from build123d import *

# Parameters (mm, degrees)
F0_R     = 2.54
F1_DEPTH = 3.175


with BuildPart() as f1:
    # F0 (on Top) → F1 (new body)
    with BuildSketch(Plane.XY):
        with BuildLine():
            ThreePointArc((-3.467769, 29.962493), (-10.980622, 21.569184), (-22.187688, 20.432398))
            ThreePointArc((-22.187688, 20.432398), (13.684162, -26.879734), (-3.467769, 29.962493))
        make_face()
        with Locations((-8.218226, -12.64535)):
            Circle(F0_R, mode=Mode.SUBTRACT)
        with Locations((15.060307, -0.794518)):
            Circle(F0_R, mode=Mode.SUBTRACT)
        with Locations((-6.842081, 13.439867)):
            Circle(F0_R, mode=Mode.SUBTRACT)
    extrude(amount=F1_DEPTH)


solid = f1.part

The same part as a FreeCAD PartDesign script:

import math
import FreeCAD as App
import Part
import Sketcher
from FreeCAD import Vector
Q = App.Units.Quantity

doc = App.newDocument("Part")
params = doc.addObject("Spreadsheet::Sheet", "Params")
for row, (alias, value) in enumerate([
    ("sketch1_diameter", "0.2 in"),
    ("sketch1_radius", "1.1875 in"),
    ("pad1_length", "0.125 in"),
], start=1):
    params.set(f"A{row}", alias)
    params.set(f"B{row}", "=" + value)
    params.setAlias(f"B{row}", alias)

body = doc.addObject("PartDesign::Body", "Body")

sketch1 = doc.addObject("Sketcher::SketchObject", "Sketch")
body.addObject(sketch1)
sketch1.AttachmentSupport = (doc.XY_Plane, [""])
sketch1.MapMode = "FlatFace"
sketch1.addGeometry(Part.ArcOfCircle(Part.Circle(Vector(-18.1, 35.5, 0), Vector(0, 0, 1), 15.6), math.radians(-105), math.radians(-21)), False)
sketch1.addGeometry(Part.ArcOfCircle(Part.Circle(Vector(0, 0, 0), Vector(0, 0, 1), 30.2), math.radians(137), math.radians(457)), False)
sketch1.addGeometry(Part.Circle(Vector(-8.2, -12.6, 0), Vector(0, 0, 1), 2.5), False)
sketch1.addGeometry(Part.Circle(Vector(15.1, -0.8, 0), Vector(0, 0, 1), 2.5), False)
sketch1.addGeometry(Part.Circle(Vector(-6.8, 13.4, 0), Vector(0, 0, 1), 2.5), False)
sketch1.addConstraint(Sketcher.Constraint("Coincident", 0, 1, 1, 1))
sketch1.addConstraint(Sketcher.Constraint("Coincident", 1, 2, 0, 2))
sketch1.addConstraint(Sketcher.Constraint("Coincident", 1, 3, -1, 1))
sketch1.addConstraint(Sketcher.Constraint("Equal", 2, 3))
sketch1.addConstraint(Sketcher.Constraint("Equal", 3, 4))
sketch1.addConstraint(Sketcher.Constraint("Diameter", 2, Q("0.2 in")))
sketch1.addConstraint(Sketcher.Constraint("Radius", 1, Q("1.1875 in")))
sketch1.addConstraint(Sketcher.Constraint("Radius", 0, Q("15.583267 mm")))
sketch1.addConstraint(Sketcher.Constraint("DistanceX", 0, 3, -1, 1, Q("18.050459 mm")))
sketch1.addConstraint(Sketcher.Constraint("DistanceY", -1, 1, 0, 3, Q("35.45643 mm")))
sketch1.addConstraint(Sketcher.Constraint("DistanceY", 2, 3, -1, 1, Q("12.64535 mm")))
sketch1.addConstraint(Sketcher.Constraint("DistanceX", 4, 3, -1, 1, Q("6.842081 mm")))
sketch1.addConstraint(Sketcher.Constraint("DistanceY", 3, 3, 1, 3, Q("0.794518 mm")))
sketch1.addConstraint(Sketcher.Constraint("DistanceX", 4, 3, 3, 3, Q("21.902388 mm")))
sketch1.addConstraint(Sketcher.Constraint("DistanceY", 4, 3, 0, 1, Q("6.992531 mm")))
sketch1.addConstraint(Sketcher.Constraint("DistanceX", 2, 3, -1, 1, Q("8.218226 mm")))
sketch1.setExpression("Constraints[5]", "Params.sketch1_diameter")
sketch1.setExpression("Constraints[6]", "Params.sketch1_radius")
pad1 = doc.addObject("PartDesign::Pad", "Pad")
body.addObject(pad1)
pad1.Profile = sketch1
pad1.setExpression("Length", "Params.pad1_length")

doc.recompute()
